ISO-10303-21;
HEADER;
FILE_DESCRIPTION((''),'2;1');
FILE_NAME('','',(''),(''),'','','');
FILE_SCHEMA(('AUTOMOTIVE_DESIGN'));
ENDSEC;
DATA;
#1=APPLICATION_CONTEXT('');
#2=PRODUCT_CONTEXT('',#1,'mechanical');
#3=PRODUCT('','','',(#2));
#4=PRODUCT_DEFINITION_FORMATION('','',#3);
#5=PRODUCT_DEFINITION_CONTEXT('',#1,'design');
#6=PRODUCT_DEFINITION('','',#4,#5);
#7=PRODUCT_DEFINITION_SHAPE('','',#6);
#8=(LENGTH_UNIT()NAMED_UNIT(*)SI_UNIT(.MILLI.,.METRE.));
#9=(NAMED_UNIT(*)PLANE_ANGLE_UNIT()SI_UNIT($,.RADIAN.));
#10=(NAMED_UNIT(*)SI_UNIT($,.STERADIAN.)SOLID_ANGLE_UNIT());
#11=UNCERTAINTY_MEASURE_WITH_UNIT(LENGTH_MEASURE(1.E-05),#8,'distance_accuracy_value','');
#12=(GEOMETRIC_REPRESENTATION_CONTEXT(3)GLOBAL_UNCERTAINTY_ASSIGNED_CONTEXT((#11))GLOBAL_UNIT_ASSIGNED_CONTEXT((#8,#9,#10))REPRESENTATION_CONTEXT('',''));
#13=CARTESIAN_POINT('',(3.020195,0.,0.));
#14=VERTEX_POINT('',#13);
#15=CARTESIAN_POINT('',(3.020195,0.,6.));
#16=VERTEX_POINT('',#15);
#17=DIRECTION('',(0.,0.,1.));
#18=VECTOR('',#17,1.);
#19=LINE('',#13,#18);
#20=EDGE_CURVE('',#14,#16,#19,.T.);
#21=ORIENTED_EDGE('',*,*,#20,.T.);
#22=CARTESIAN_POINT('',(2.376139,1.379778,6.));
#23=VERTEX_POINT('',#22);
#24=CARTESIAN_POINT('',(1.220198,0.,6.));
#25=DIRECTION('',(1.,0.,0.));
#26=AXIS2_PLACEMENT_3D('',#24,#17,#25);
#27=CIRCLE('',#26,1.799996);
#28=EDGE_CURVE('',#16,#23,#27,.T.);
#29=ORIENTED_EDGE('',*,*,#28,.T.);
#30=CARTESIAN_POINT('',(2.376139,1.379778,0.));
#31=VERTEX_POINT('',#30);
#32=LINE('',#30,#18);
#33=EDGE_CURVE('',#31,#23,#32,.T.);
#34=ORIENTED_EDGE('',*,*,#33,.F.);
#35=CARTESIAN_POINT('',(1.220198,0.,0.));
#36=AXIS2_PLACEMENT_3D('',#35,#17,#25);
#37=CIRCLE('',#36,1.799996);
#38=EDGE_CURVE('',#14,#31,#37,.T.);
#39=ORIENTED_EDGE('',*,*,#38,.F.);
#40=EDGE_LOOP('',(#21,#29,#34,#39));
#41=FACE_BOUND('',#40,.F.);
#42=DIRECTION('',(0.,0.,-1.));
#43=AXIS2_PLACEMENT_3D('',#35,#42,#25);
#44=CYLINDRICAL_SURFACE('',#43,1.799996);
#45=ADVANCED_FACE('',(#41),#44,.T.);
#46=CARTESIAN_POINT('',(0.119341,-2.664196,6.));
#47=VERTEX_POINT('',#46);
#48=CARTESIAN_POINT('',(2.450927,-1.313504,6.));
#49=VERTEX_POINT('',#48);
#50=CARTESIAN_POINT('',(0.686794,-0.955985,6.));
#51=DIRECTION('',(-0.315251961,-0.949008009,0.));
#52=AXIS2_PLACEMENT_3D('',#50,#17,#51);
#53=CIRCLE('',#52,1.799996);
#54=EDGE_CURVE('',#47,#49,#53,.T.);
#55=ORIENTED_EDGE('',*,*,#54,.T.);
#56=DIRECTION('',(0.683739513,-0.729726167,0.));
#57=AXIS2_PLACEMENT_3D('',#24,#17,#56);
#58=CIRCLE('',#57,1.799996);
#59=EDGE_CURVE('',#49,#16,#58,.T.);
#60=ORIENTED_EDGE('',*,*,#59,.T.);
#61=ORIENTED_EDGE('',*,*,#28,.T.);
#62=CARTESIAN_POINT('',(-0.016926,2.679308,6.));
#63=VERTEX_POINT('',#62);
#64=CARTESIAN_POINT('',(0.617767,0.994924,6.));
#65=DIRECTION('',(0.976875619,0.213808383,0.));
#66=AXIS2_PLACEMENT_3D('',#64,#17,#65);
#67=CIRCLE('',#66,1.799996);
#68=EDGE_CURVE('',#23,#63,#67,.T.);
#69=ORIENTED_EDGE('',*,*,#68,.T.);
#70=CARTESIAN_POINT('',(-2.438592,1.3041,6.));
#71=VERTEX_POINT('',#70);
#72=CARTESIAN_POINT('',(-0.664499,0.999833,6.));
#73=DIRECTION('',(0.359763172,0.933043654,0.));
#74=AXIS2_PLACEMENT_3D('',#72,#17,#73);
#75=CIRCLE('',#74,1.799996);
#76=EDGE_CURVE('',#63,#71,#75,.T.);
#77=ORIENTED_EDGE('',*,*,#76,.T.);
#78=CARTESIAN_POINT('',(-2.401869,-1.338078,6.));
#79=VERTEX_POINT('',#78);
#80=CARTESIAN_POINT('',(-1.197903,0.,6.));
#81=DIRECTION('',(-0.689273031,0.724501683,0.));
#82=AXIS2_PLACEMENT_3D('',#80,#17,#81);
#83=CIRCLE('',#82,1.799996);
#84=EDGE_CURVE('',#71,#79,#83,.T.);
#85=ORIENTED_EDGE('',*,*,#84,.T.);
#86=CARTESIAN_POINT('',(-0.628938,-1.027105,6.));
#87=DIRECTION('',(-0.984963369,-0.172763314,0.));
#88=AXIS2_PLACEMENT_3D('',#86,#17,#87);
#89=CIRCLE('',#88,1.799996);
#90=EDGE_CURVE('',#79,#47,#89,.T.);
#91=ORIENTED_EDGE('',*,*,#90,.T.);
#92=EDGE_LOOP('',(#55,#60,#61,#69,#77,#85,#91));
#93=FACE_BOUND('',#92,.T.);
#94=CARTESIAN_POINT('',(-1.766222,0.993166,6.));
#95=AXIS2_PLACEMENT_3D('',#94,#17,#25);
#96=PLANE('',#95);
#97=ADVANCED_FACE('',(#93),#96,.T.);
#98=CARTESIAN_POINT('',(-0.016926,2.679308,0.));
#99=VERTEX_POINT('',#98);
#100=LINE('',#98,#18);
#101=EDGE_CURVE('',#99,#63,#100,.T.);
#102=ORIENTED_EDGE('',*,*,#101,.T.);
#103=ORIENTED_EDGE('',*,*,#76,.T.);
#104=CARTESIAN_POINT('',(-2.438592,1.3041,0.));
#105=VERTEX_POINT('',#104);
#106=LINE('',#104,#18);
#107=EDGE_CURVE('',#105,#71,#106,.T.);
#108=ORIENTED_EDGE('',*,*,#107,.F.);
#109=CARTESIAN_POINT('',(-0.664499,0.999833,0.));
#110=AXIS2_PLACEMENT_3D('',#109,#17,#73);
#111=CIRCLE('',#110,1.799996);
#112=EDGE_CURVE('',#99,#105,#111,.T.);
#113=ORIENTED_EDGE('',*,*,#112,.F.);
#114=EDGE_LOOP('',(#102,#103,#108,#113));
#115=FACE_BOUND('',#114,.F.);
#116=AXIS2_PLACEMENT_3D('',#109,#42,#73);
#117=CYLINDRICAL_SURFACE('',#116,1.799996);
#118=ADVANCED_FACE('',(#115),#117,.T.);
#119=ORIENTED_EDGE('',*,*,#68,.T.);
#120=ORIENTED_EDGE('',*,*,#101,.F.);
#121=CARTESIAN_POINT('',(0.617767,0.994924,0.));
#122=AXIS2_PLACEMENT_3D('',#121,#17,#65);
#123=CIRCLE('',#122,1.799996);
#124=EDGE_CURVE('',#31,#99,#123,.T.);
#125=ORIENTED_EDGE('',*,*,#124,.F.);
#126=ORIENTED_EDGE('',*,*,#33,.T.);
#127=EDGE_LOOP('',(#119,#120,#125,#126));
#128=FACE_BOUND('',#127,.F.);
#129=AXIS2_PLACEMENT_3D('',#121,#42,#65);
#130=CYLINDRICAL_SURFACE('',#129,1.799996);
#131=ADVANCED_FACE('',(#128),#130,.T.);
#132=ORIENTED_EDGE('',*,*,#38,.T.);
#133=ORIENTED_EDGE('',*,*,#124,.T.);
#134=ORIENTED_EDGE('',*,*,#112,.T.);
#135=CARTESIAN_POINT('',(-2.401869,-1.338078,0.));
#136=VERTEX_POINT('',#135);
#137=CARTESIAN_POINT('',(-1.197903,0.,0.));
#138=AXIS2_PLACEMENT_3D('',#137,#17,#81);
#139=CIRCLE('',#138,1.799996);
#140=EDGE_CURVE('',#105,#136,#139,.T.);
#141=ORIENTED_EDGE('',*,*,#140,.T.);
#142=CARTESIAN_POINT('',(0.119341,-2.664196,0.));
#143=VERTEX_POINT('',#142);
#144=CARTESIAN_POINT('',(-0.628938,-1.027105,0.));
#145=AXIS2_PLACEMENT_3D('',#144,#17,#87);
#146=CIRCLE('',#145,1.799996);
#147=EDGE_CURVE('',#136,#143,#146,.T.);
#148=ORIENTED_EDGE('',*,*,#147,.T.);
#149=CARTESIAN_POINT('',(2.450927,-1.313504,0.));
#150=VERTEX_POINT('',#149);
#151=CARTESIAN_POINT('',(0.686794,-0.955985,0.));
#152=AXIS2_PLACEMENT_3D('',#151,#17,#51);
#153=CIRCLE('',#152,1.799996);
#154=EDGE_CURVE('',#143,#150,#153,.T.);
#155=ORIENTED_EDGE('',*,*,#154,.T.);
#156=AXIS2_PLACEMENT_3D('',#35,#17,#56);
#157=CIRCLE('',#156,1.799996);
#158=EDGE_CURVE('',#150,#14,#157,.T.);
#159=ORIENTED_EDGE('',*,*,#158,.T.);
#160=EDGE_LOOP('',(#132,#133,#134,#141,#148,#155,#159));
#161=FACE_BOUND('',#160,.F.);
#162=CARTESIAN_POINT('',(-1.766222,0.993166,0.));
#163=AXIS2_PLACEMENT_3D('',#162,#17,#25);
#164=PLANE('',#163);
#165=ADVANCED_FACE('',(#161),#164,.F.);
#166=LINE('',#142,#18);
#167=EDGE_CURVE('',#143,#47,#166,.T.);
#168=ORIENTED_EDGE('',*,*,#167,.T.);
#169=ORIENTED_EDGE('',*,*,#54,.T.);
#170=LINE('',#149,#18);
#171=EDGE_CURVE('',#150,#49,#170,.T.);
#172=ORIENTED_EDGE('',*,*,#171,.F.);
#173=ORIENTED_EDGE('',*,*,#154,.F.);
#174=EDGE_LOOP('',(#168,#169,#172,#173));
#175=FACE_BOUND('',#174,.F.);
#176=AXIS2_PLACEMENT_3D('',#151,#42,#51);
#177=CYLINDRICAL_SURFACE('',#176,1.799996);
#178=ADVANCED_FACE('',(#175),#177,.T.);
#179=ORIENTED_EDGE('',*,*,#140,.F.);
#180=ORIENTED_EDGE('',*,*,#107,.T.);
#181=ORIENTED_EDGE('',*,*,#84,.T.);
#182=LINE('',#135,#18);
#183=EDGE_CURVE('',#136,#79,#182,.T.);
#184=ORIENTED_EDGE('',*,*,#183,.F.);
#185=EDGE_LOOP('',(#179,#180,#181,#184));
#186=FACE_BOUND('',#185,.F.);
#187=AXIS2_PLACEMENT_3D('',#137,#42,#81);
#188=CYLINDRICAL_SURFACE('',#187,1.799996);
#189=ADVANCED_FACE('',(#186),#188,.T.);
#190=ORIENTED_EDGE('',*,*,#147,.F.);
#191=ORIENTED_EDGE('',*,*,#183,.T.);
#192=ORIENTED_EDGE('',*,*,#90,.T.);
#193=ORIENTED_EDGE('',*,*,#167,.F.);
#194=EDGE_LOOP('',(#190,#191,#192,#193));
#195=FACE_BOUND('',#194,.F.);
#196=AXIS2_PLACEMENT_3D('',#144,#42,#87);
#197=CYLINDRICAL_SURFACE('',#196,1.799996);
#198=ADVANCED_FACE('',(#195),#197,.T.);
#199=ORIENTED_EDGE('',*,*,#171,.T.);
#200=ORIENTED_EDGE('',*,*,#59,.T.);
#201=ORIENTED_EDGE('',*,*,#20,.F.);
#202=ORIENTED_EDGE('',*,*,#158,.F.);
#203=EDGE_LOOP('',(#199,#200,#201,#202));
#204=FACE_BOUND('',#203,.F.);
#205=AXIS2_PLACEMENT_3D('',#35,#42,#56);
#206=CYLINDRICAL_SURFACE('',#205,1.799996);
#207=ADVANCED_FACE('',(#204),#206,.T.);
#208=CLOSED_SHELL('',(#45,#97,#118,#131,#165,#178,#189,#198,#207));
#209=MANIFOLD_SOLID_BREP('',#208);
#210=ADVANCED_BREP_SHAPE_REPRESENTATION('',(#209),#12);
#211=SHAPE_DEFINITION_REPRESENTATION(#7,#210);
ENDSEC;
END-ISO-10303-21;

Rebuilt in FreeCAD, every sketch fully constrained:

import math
import FreeCAD as App
import Part
import Sketcher
from FreeCAD import Vector

doc = App.newDocument("Part")
body = doc.addObject("PartDesign::Body", "Body")

# Sketch on XY plane
sketch1 = body.newObject("Sketcher::SketchObject", "Sketch")
sketch1.AttachmentSupport = (doc.getObject("XY_Plane"), [""])
sketch1.MapMode = "FlatFace"
sketch1.addGeometry(Part.ArcOfCircle(Part.Circle(Vector(1.2, 0, 0), Vector(0, 0, 1), 1.8), math.radians(-47), math.radians(0)), False)
sketch1.addGeometry(Part.ArcOfCircle(Part.Circle(Vector(1.2, 0, 0), Vector(0, 0, 1), 1.8), math.radians(0), math.radians(50)), False)
sketch1.addGeometry(Part.ArcOfCircle(Part.Circle(Vector(0.6, 1, 0), Vector(0, 0, 1), 1.8), math.radians(12), math.radians(111)), False)
sketch1.addGeometry(Part.ArcOfCircle(Part.Circle(Vector(-0.7, 1, 0), Vector(0, 0, 1), 1.8), math.radians(69), math.radians(170)), False)
sketch1.addGeometry(Part.ArcOfCircle(Part.Circle(Vector(-1.2, 0, 0), Vector(0, 0, 1), 1.8), math.radians(134), math.radians(228)), False)
sketch1.addGeometry(Part.ArcOfCircle(Part.Circle(Vector(-0.6, -1, 0), Vector(0, 0, 1), 1.8), math.radians(-170), math.radians(-65)), False)
sketch1.addGeometry(Part.ArcOfCircle(Part.Circle(Vector(0.7, -1, 0), Vector(0, 0, 1), 1.8), math.radians(-108), math.radians(-11)), False)
sketch1.addConstraint(Sketcher.Constraint("Tangent", 0, 2, 1, 1))
sketch1.addConstraint(Sketcher.Constraint("Coincident", 1, 2, 2, 1))
sketch1.addConstraint(Sketcher.Constraint("Coincident", 2, 2, 3, 1))
sketch1.addConstraint(Sketcher.Constraint("Coincident", 3, 2, 4, 1))
sketch1.addConstraint(Sketcher.Constraint("Coincident", 4, 2, 5, 1))
sketch1.addConstraint(Sketcher.Constraint("Coincident", 5, 2, 6, 1))
sketch1.addConstraint(Sketcher.Constraint("Coincident", 6, 2, 0, 1))
sketch1.addConstraint(Sketcher.Constraint("Equal", 0, 1))
sketch1.addConstraint(Sketcher.Constraint("Equal", 1, 2))
sketch1.addConstraint(Sketcher.Constraint("Equal", 2, 3))
sketch1.addConstraint(Sketcher.Constraint("Equal", 3, 4))
sketch1.addConstraint(Sketcher.Constraint("Equal", 4, 5))
sketch1.addConstraint(Sketcher.Constraint("Equal", 5, 6))
sketch1.addConstraint(Sketcher.Constraint("PointOnObject", 0, 3, -1))
sketch1.addConstraint(Sketcher.Constraint("PointOnObject", 4, 3, -1))
sketch1.addConstraint(Sketcher.Constraint("PointOnObject", 0, 2, -1))
sketch1.addConstraint(Sketcher.Constraint("Radius", 0, 1.799996))
sketch1.addConstraint(Sketcher.Constraint("DistanceX", -1, 1, 0, 3, 1.220198))
sketch1.addConstraint(Sketcher.Constraint("DistanceX", 3, 3, -1, 1, 0.664499))
sketch1.addConstraint(Sketcher.Constraint("DistanceY", -1, 1, 3, 2, 1.3041))
sketch1.addConstraint(Sketcher.Constraint("DistanceX", 4, 3, 0, 3, 2.418102))
sketch1.addConstraint(Sketcher.Constraint("DistanceX", 6, 3, 0, 2, 2.333401))
sketch1.addConstraint(Sketcher.Constraint("DistanceX", 5, 3, -1, 1, 0.628938))
sketch1.addConstraint(Sketcher.Constraint("DistanceX", -1, 1, 1, 2, 2.376139))
sketch1.addConstraint(Sketcher.Constraint("DistanceY", -1, 1, 2, 2, 2.679308))
sketch1.addConstraint(Sketcher.Constraint("DistanceX", 4, 2, -1, 1, 2.401869))
sketch1.addConstraint(Sketcher.Constraint("DistanceX", -1, 1, 5, 2, 0.119341))
pad1 = body.newObject("PartDesign::Pad", "Pad")
pad1.Profile = sketch1
pad1.Length = 6

doc.recompute()
